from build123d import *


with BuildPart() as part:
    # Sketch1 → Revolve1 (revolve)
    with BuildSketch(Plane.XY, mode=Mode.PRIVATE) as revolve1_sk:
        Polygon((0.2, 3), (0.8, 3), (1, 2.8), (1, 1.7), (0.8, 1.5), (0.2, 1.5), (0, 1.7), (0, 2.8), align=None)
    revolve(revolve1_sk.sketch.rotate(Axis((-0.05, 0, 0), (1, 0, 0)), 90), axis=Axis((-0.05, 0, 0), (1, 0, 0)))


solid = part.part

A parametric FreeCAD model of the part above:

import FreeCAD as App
import Part
import Sketcher
from FreeCAD import Vector
Q = App.Units.Quantity

doc = App.newDocument("Part")
params = doc.addObject("Spreadsheet::Sheet", "Params")
for row, (alias, value) in enumerate([
    ("sketch1_width", "0.6 mm"),
    ("sketch1_height", "1.1 mm"),
    ("revolution_angle", "360 deg"),
], start=1):
    params.set(f"A{row}", alias)
    params.set(f"B{row}", "=" + value)
    params.setAlias(f"B{row}", alias)

body = doc.addObject("PartDesign::Body", "Body")

# Sketch on XY plane
sketch1 = body.newObject("Sketcher::SketchObject", "Sketch")
sketch1.AttachmentSupport = (doc.getObject("XY_Plane"), [""])
sketch1.MapMode = "FlatFace"
sketch1.addGeometry([
    Part.LineSegment(Vector(0.8, 3, 0), Vector(0.2, 3, 0)),  # 0
    Part.LineSegment(Vector(0.2, 3, 0), Vector(0, 2.8, 0)),  # 1
    Part.LineSegment(Vector(0, 2.8, 0), Vector(0, 1.7, 0)),  # 2
    Part.LineSegment(Vector(0, 1.7, 0), Vector(0.2, 1.5, 0)),  # 3
    Part.LineSegment(Vector(0.2, 1.5, 0), Vector(0.8, 1.5, 0)),  # 4
    Part.LineSegment(Vector(0.8, 1.5, 0), Vector(1, 1.7, 0)),  # 5
    Part.LineSegment(Vector(1, 1.7, 0), Vector(1, 2.8, 0)),  # 6
    Part.LineSegment(Vector(1, 2.8, 0), Vector(0.8, 3, 0)),  # 7
], False)
sketch1.addConstraint([
    Sketcher.Constraint("Coincident", 0, 2, 1, 1),
    Sketcher.Constraint("Coincident", 1, 2, 2, 1),
    Sketcher.Constraint("Coincident", 2, 2, 3, 1),
    Sketcher.Constraint("Coincident", 3, 2, 4, 1),
    Sketcher.Constraint("Coincident", 4, 2, 5, 1),
    Sketcher.Constraint("Coincident", 5, 2, 6, 1),
    Sketcher.Constraint("Coincident", 6, 2, 7, 1),
    Sketcher.Constraint("Coincident", 7, 2, 0, 1),
    Sketcher.Constraint("Horizontal", 0),
    Sketcher.Constraint("Vertical", 2),
    Sketcher.Constraint("Horizontal", 4),
    Sketcher.Constraint("Vertical", 6),
    Sketcher.Constraint("PointOnObject", 1, 2, -2),
    Sketcher.Constraint("Perpendicular", 1, 3),
    Sketcher.Constraint("Perpendicular", 3, 5),
    Sketcher.Constraint("Perpendicular", 5, 7),
    Sketcher.Constraint("Horizontal", 2, 2, 5, 2),
    Sketcher.Constraint("Horizontal", 1, 2, 6, 2),
    Sketcher.Constraint("Vertical", 0, 2, 3, 2),
    Sketcher.Constraint("Vertical", 4, 2, 7, 2),
    Sketcher.Constraint("DistanceX", 0, 2, 0, 1, Q("0.6 mm")),
    Sketcher.Constraint("DistanceY", 2, 2, 2, 1, Q("1.1 mm")),
    Sketcher.Constraint("DistanceY", -1, 1, 0, 2, Q("3 mm")),
    Sketcher.Constraint("DistanceX", -1, 1, 5, 2, Q("1 mm")),
])
sketch1.setExpression("Constraints[20]", "Params.sketch1_width")
sketch1.setExpression("Constraints[21]", "Params.sketch1_height")
revolution = body.newObject("PartDesign::Revolution", "Revolution")
revolution.Profile = sketch1
revolution.ReferenceAxis = (sketch1, ["H_Axis"])
revolution.setExpression("Angle", "Params.revolution_angle")

doc.recompute()
